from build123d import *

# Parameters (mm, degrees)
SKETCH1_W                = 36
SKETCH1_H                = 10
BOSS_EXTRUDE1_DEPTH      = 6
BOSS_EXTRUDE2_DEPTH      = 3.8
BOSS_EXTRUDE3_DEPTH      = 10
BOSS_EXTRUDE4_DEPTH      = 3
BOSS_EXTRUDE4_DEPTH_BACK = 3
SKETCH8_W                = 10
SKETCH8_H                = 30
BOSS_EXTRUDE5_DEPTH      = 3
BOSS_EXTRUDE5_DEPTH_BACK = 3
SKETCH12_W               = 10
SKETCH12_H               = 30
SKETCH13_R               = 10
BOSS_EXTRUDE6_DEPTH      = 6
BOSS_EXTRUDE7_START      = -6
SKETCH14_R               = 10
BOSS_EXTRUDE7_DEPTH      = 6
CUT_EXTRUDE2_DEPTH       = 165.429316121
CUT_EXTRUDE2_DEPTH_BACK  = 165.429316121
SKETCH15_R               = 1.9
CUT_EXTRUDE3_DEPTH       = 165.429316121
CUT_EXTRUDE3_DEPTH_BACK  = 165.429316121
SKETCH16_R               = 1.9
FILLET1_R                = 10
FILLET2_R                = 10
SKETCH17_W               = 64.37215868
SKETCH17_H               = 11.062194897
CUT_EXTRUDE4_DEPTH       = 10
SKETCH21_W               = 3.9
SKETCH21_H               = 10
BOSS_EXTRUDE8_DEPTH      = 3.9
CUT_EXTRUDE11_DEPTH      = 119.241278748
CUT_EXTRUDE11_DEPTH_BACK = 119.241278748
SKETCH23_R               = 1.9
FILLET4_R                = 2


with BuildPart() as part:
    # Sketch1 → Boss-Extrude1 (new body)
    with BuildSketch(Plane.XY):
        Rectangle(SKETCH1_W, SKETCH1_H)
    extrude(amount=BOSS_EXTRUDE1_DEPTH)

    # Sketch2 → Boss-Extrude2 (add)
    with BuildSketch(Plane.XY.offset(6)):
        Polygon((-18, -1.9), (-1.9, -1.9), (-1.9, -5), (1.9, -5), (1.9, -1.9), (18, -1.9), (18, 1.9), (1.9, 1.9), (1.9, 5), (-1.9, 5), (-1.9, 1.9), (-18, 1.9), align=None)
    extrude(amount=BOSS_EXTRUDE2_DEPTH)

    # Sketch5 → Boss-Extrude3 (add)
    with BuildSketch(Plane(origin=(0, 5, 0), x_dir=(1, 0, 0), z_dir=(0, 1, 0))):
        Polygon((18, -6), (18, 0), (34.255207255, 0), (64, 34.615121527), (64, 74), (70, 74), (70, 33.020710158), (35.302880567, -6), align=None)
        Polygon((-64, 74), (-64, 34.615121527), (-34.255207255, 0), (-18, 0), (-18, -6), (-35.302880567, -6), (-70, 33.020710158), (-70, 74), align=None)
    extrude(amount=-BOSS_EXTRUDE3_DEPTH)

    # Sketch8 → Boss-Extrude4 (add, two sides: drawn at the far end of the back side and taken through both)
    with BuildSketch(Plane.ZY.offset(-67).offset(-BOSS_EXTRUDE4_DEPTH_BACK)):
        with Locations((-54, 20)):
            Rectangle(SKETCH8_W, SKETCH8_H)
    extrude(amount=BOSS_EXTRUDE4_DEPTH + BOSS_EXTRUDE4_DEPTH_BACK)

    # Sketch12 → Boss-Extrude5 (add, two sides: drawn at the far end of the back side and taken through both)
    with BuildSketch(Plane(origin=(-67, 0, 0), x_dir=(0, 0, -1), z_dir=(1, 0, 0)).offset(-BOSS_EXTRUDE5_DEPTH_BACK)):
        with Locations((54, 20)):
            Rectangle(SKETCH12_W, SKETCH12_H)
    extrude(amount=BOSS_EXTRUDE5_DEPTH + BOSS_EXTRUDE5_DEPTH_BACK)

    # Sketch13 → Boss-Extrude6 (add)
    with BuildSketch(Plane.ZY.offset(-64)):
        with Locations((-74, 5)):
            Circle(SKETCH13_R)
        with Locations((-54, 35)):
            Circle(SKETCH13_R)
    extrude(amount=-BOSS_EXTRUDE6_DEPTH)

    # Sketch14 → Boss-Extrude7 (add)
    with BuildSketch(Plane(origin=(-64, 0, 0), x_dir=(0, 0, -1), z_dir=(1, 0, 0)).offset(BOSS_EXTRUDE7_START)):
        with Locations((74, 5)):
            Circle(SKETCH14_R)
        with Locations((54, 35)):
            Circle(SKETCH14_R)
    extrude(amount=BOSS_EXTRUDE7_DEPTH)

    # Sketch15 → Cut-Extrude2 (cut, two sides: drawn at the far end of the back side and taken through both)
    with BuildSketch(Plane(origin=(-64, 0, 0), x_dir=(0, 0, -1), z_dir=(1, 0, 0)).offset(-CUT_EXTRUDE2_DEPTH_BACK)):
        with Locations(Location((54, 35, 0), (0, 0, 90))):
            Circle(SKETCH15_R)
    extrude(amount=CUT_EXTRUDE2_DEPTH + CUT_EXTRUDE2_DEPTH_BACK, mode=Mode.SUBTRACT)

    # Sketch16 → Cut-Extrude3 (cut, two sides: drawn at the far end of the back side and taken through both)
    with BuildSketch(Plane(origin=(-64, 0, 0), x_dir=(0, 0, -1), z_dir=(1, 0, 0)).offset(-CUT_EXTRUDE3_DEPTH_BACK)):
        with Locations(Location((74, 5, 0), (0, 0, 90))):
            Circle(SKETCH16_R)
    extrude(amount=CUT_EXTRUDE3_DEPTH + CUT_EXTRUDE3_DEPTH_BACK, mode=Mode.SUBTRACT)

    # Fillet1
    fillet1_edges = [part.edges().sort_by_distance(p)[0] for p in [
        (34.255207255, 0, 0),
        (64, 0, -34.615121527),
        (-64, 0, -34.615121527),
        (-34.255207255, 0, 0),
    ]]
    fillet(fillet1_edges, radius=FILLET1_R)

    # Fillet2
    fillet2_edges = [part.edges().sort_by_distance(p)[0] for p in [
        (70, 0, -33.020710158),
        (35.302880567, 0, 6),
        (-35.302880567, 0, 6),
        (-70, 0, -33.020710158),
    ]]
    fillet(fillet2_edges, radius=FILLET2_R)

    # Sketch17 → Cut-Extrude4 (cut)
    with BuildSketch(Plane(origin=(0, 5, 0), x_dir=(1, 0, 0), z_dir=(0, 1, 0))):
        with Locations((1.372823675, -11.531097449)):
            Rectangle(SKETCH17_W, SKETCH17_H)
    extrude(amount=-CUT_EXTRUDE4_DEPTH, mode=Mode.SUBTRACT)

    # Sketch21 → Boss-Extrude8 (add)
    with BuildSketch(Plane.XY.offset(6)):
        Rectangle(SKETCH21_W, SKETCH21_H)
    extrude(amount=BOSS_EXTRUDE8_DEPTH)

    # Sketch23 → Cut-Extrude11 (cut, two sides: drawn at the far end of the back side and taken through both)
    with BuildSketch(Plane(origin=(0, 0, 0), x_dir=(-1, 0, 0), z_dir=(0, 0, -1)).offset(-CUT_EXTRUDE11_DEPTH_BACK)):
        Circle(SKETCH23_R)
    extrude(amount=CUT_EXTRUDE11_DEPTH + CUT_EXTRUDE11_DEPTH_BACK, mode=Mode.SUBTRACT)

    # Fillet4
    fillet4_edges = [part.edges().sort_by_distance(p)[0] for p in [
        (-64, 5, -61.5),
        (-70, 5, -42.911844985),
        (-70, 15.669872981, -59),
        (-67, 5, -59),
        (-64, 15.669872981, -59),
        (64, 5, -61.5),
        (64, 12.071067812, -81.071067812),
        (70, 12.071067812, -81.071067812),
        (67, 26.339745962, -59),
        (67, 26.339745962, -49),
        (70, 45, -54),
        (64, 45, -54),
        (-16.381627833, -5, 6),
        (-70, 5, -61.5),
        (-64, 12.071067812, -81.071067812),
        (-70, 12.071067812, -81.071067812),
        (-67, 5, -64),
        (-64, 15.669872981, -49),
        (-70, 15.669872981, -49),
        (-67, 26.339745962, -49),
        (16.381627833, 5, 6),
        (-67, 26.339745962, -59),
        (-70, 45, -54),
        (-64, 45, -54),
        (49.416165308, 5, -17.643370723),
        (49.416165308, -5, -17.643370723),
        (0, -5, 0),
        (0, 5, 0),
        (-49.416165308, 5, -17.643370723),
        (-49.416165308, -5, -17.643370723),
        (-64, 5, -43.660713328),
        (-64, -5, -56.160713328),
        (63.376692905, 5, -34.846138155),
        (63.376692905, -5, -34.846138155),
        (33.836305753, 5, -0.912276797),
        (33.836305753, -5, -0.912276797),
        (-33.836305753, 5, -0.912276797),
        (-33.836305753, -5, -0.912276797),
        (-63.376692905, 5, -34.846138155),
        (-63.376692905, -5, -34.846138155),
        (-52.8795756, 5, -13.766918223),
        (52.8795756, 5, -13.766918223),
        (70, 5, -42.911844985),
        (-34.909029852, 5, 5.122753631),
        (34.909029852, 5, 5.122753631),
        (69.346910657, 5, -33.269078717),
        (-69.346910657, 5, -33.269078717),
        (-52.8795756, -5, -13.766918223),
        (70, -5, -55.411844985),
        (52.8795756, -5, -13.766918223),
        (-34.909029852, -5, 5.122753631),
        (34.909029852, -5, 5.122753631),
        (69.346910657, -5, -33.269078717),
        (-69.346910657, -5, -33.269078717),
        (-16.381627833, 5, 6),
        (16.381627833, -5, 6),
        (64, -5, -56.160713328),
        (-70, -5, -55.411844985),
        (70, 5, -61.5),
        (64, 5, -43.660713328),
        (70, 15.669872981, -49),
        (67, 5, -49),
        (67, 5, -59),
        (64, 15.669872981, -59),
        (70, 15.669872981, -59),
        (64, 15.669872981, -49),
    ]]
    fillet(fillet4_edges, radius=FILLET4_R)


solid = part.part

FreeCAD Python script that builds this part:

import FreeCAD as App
import Part
import Sketcher

V = App.Vector


def edges_at(feature, points):
    """Names of the edges that pass closest to the given points."""
    edges = feature.Shape.Edges
    near = lambda p: min(range(len(edges)), key=lambda i: edges[i].distToShape(Part.Vertex(*p))[0])
    return sorted({f"Edge{near(p) + 1}" for p in points})


def add_polygon(sketch, points):
    """Adds a closed chain of lines whose ends are joined by coincident constraints."""
    first, n = sketch.GeometryCount, len(points)
    for a, b in zip(points, points[1:] + points[:1]):
        sketch.addGeometry(Part.LineSegment(App.Vector(*a, 0), App.Vector(*b, 0)), False)
    for i in range(n):
        sketch.addConstraint(Sketcher.Constraint("Coincident", first + i, 2, first + (i + 1) % n, 1))

doc = App.newDocument("Part")
body = doc.addObject("PartDesign::Body", "Body")

# Sketch on XY plane
sketch1 = doc.addObject("Sketcher::SketchObject", "Sketch")
body.addObject(sketch1)
sketch1.AttachmentSupport = (doc.XY_Plane, [""])
sketch1.MapMode = "FlatFace"
add_polygon(sketch1, [(-18, 5), (-18, -5), (18, -5), (18, 5)])  # lines 0-3
sketch1.addConstraint([
    Sketcher.Constraint("Vertical", 0),
    Sketcher.Constraint("Horizontal", 1),
    Sketcher.Constraint("Vertical", 2),
    Sketcher.Constraint("Horizontal", 3),
    Sketcher.Constraint("Symmetric", 0, 2, 2, 2, -1, 1),
    Sketcher.Constraint("DistanceX", 1, 1, 1, 2, 36.0),
    Sketcher.Constraint("DistanceY", 0, 2, 0, 1, 10.0),
])
pad1 = doc.addObject("PartDesign::Pad", "Pad")
body.addObject(pad1)
pad1.Profile = sketch1
pad1.Length = 6

# Sketch on XY plane
sketch2 = doc.addObject("Sketcher::SketchObject", "Sketch001")
body.addObject(sketch2)
sketch2.AttachmentSupport = (doc.XY_Plane, [""])
sketch2.MapMode = "FlatFace"
sketch2.AttachmentOffset = App.Placement(V(0, 0, 6), App.Rotation())
add_polygon(sketch2, [(-18, -1.9), (-1.9, -1.9), (-1.9, -5), (1.9, -5), (1.9, -1.9), (18, -1.9), (18, 1.9), (1.9, 1.9), (1.9, 5), (-1.9, 5), (-1.9, 1.9), (-18, 1.9)])  # lines 0-11
sketch2.addConstraint([
    Sketcher.Constraint("Horizontal", 0),
    Sketcher.Constraint("Vertical", 1),
    Sketcher.Constraint("Horizontal", 2),
    Sketcher.Constraint("Vertical", 3),
    Sketcher.Constraint("Horizontal", 4),
    Sketcher.Constraint("Vertical", 5),
    Sketcher.Constraint("Horizontal", 6),
    Sketcher.Constraint("Vertical", 7),
    Sketcher.Constraint("Horizontal", 8),
    Sketcher.Constraint("Vertical", 9),
    Sketcher.Constraint("Horizontal", 10),
    Sketcher.Constraint("Vertical", 11),
    Sketcher.Constraint("Symmetric", 0, 2, 6, 2, -1, 1),
    Sketcher.Constraint("Symmetric", 2, 2, 8, 2, -1, 1),
    Sketcher.Constraint("Symmetric", 4, 2, 10, 2, -1, 1),
    Sketcher.Constraint("Symmetric", 0, 2, 3, 2, -2),
    Sketcher.Constraint("Equal", 8, 5),
    Sketcher.Constraint("DistanceX", 0, 1, 0, 2, 16.1),
    Sketcher.Constraint("DistanceX", 2, 1, 2, 2, 3.8),
    Sketcher.Constraint("DistanceY", 1, 2, 1, 1, 3.1),
])
pad2 = doc.addObject("PartDesign::Pad", "Pad001")
body.addObject(pad2)
pad2.Profile = sketch2
pad2.Length = 3.8

# Sketch on XZ plane
sketch3 = doc.addObject("Sketcher::SketchObject", "Sketch002")
body.addObject(sketch3)
sketch3.AttachmentSupport = (doc.XZ_Plane, [""])
sketch3.MapMode = "FlatFace"
sketch3.AttachmentOffset = App.Placement(V(0, 0, -5), App.Rotation())
add_polygon(sketch3, [(18, 0), (18, 6), (35.302881, 6), (70, -33.02071), (70, -74), (64, -74), (64, -34.615122), (34.255207, 0)])  # lines 0-7
add_polygon(sketch3, [(-64, -34.615122), (-64, -74), (-70, -74), (-70, -33.02071), (-35.302881, 6), (-18, 6), (-18, 0), (-34.255207, 0)])  # lines 8-15
sketch3.addConstraint([
    Sketcher.Constraint("Vertical", 0),
    Sketcher.Constraint("Horizontal", 1),
    Sketcher.Constraint("Vertical", 3),
    Sketcher.Constraint("Horizontal", 4),
    Sketcher.Constraint("Vertical", 5),
    Sketcher.Constraint("Horizontal", 7),
    Sketcher.Constraint("Vertical", 8),
    Sketcher.Constraint("Horizontal", 9),
    Sketcher.Constraint("Vertical", 10),
    Sketcher.Constraint("Horizontal", 12),
    Sketcher.Constraint("Vertical", 13),
    Sketcher.Constraint("Horizontal", 14),
    Sketcher.Constraint("Symmetric", 7, 2, 13, 2, -1, 1),
    Sketcher.Constraint("Symmetric", 4, 2, 8, 2, -2),
    Sketcher.Constraint("Symmetric", 2, 2, 10, 2, -2),
    Sketcher.Constraint("Symmetric", 1, 2, 11, 2, -2),
    Sketcher.Constraint("Symmetric", 6, 2, 14, 2, -2),
    Sketcher.Constraint("Horizontal", 5, 2, 15, 2),
    Sketcher.Constraint("Equal", 9, 0),
    Sketcher.Constraint("DistanceX", 4, 2, 4, 1, 6.0),
    Sketcher.Constraint("DistanceX", -1, 1, 0, 2, 18.0),
    Sketcher.Constraint("DistanceX", -1, 1, 2, 2, 70.0),
    Sketcher.Constraint("DistanceY", 3, 2, -1, 1, 74.0),
    Sketcher.Constraint("DistanceX", 1, 1, 1, 2, 17.302881),
    Sketcher.Constraint("DistanceY", 3, 2, 3, 1, 40.97929),
    Sketcher.Constraint("DistanceY", 5, 1, 5, 2, 39.384878),
    Sketcher.Constraint("Distance", 6, 45.639449),
])
pad3 = doc.addObject("PartDesign::Pad", "Pad002")
body.addObject(pad3)
pad3.Profile = sketch3
pad3.Length = 10

# Sketch on YZ plane
sketch4 = doc.addObject("Sketcher::SketchObject", "Sketch003")
body.addObject(sketch4)
sketch4.AttachmentSupport = (doc.YZ_Plane, [""])
sketch4.MapMode = "FlatFace"
sketch4.AttachmentOffset = App.Placement(V(0, 0, 67), App.Rotation())
add_polygon(sketch4, [(35, -59), (5, -59), (5, -49), (35, -49)])  # lines 0-3
sketch4.addConstraint([
    Sketcher.Constraint("Horizontal", 0),
    Sketcher.Constraint("Vertical", 1),
    Sketcher.Constraint("Horizontal", 2),
    Sketcher.Constraint("Vertical", 3),
    Sketcher.Constraint("DistanceX", 0, 2, 0, 1, 30.0),
    Sketcher.Constraint("DistanceY", 1, 1, 1, 2, 10.0),
    Sketcher.Constraint("DistanceX", -1, 1, 0, 2, 5.0),
    Sketcher.Constraint("DistanceY", 0, 2, -1, 1, 59.0),
])
pad4 = doc.addObject("PartDesign::Pad", "Pad003")
body.addObject(pad4)
pad4.Profile = sketch4
pad4.Type = "TwoLengths"
pad4.Length = 3
pad4.Length2 = 3
pad4.Reversed = True

# Sketch on YZ plane
sketch5 = doc.addObject("Sketcher::SketchObject", "Sketch004")
body.addObject(sketch5)
sketch5.AttachmentSupport = (doc.YZ_Plane, [""])
sketch5.MapMode = "FlatFace"
sketch5.AttachmentOffset = App.Placement(V(0, 0, -67), App.Rotation())
add_polygon(sketch5, [(35, -49), (5, -49), (5, -59), (35, -59)])  # lines 0-3
sketch5.addConstraint([
    Sketcher.Constraint("Horizontal", 0),
    Sketcher.Constraint("Vertical", 1),
    Sketcher.Constraint("Horizontal", 2),
    Sketcher.Constraint("Vertical", 3),
    Sketcher.Constraint("DistanceX", 0, 2, 0, 1, 30.0),
    Sketcher.Constraint("DistanceY", 1, 2, 1, 1, 10.0),
    Sketcher.Constraint("DistanceX", -1, 1, 0, 2, 5.0),
    Sketcher.Constraint("DistanceY", 0, 2, -1, 1, 49.0),
])
pad5 = doc.addObject("PartDesign::Pad", "Pad004")
body.addObject(pad5)
pad5.Profile = sketch5
pad5.Type = "TwoLengths"
pad5.Length = 3
pad5.Length2 = 3

# Sketch on YZ plane
sketch6 = doc.addObject("Sketcher::SketchObject", "Sketch005")
body.addObject(sketch6)
sketch6.AttachmentSupport = (doc.YZ_Plane, [""])
sketch6.MapMode = "FlatFace"
sketch6.AttachmentOffset = App.Placement(V(0, 0, 64), App.Rotation())
sketch6.addGeometry([
    Part.Circle(V(5, -74, 0), V(0, 0, 1), 10),
    Part.Circle(V(35, -54, 0), V(0, 0, 1), 10),
], False)
sketch6.addConstraint([
    Sketcher.Constraint("Equal", 0, 1),
    Sketcher.Constraint("Diameter", 0, 20.0),
    Sketcher.Constraint("DistanceX", -1, 1, 0, 3, 5.0),
    Sketcher.Constraint("DistanceY", 0, 3, -1, 1, 74.0),
    Sketcher.Constraint("DistanceX", -1, 1, 1, 3, 35.0),
    Sketcher.Constraint("DistanceY", 1, 3, -1, 1, 54.0),
])
pad6 = doc.addObject("PartDesign::Pad", "Pad005")
body.addObject(pad6)
pad6.Profile = sketch6
pad6.Length = 6

# Sketch on YZ plane
sketch7 = doc.addObject("Sketcher::SketchObject", "Sketch006")
body.addObject(sketch7)
sketch7.AttachmentSupport = (doc.YZ_Plane, [""])
sketch7.MapMode = "FlatFace"
sketch7.AttachmentOffset = App.Placement(V(0, 0, -70), App.Rotation())
sketch7.addGeometry([
    Part.Circle(V(5, -74, 0), V(0, 0, 1), 10),
    Part.Circle(V(35, -54, 0), V(0, 0, 1), 10),
], False)
sketch7.addConstraint([
    Sketcher.Constraint("Equal", 0, 1),
    Sketcher.Constraint("Diameter", 0, 20.0),
    Sketcher.Constraint("DistanceX", -1, 1, 0, 3, 5.0),
    Sketcher.Constraint("DistanceY", 0, 3, -1, 1, 74.0),
    Sketcher.Constraint("DistanceX", -1, 1, 1, 3, 35.0),
    Sketcher.Constraint("DistanceY", 1, 3, -1, 1, 54.0),
])
pad7 = doc.addObject("PartDesign::Pad", "Pad006")
body.addObject(pad7)
pad7.Profile = sketch7
pad7.Length = 6

# Sketch on YZ plane
sketch8 = doc.addObject("Sketcher::SketchObject", "Sketch007")
body.addObject(sketch8)
sketch8.AttachmentSupport = (doc.YZ_Plane, [""])
sketch8.MapMode = "FlatFace"
sketch8.AttachmentOffset = App.Placement(V(0, 0, -64), App.Rotation())
sketch8.addGeometry(Part.Circle(V(35, -54, 0), V(0, 0, 1), 1.9), False)
sketch8.addConstraint([
    Sketcher.Constraint("Diameter", 0, 3.8),
    Sketcher.Constraint("DistanceX", -1, 1, 0, 3, 35.0),
    Sketcher.Constraint("DistanceY", 0, 3, -1, 1, 54.0),
])
pocket1 = doc.addObject("PartDesign::Pocket", "Pocket")
body.addObject(pocket1)
pocket1.Profile = sketch8
pocket1.Type = "ThroughAll"
pocket1.Midplane = True

# Sketch on YZ plane
sketch9 = doc.addObject("Sketcher::SketchObject", "Sketch008")
body.addObject(sketch9)
sketch9.AttachmentSupport = (doc.YZ_Plane, [""])
sketch9.MapMode = "FlatFace"
sketch9.AttachmentOffset = App.Placement(V(0, 0, -64), App.Rotation())
sketch9.addGeometry(Part.Circle(V(5, -74, 0), V(0, 0, 1), 1.9), False)
sketch9.addConstraint([
    Sketcher.Constraint("Diameter", 0, 3.8),
    Sketcher.Constraint("DistanceX", -1, 1, 0, 3, 5.0),
    Sketcher.Constraint("DistanceY", 0, 3, -1, 1, 74.0),
])
pocket2 = doc.addObject("PartDesign::Pocket", "Pocket001")
body.addObject(pocket2)
pocket2.Profile = sketch9
pocket2.Type = "ThroughAll"
pocket2.Midplane = True
doc.recompute()

fillet = doc.addObject("PartDesign::Fillet", "Fillet")
body.addObject(fillet)
fillet.Base = (pocket2, edges_at(pocket2, [
    (34.255, 0, 0),
    (64, 0, -34.615),
    (-64, 0, -34.615),
    (-34.255, 0, 0),
]))
fillet.Radius = 10
doc.recompute()

fillet2 = doc.addObject("PartDesign::Fillet", "Fillet001")
body.addObject(fillet2)
fillet2.Base = (fillet, edges_at(fillet, [
    (70, 0, -33.021),
    (35.303, 0, 6),
    (-35.303, 0, 6),
    (-70, 0, -33.021),
]))
fillet2.Radius = 10

# Sketch on XZ plane
sketch10 = doc.addObject("Sketcher::SketchObject", "Sketch009")
body.addObject(sketch10)
sketch10.AttachmentSupport = (doc.XZ_Plane, [""])
sketch10.MapMode = "FlatFace"
sketch10.AttachmentOffset = App.Placement(V(0, 0, -5), App.Rotation())
add_polygon(sketch10, [(-30.813256, 6), (-30.813256, 17.062195), (33.558903, 17.062195), (33.558903, 6)])  # lines 0-3
sketch10.addConstraint([
    Sketcher.Constraint("Vertical", 0),
    Sketcher.Constraint("Horizontal", 1),
    Sketcher.Constraint("Vertical", 2),
    Sketcher.Constraint("Horizontal", 3),
    Sketcher.Constraint("DistanceY", -1, 1, 2, 2, 6.0),
    Sketcher.Constraint("DistanceX", 1, 1, 1, 2, 64.372159),
    Sketcher.Constraint("DistanceY", 0, 1, 0, 2, 11.062195),
    Sketcher.Constraint("DistanceX", 0, 2, -1, 1, 30.813256),
])
pocket3 = doc.addObject("PartDesign::Pocket", "Pocket002")
body.addObject(pocket3)
pocket3.Profile = sketch10
pocket3.Length = 10
pocket3.Reversed = True

# Sketch on XY plane
sketch11 = doc.addObject("Sketcher::SketchObject", "Sketch010")
body.addObject(sketch11)
sketch11.AttachmentSupport = (doc.XY_Plane, [""])
sketch11.MapMode = "FlatFace"
sketch11.AttachmentOffset = App.Placement(V(0, 0, 6), App.Rotation())
add_polygon(sketch11, [(-1.95, 5), (-1.95, -5), (1.95, -5), (1.95, 5)])  # lines 0-3
sketch11.addConstraint([
    Sketcher.Constraint("Vertical", 0),
    Sketcher.Constraint("Horizontal", 1),
    Sketcher.Constraint("Vertical", 2),
    Sketcher.Constraint("Horizontal", 3),
    Sketcher.Constraint("Symmetric", 0, 2, 2, 2, -1, 1),
    Sketcher.Constraint("DistanceY", 0, 2, 0, 1, 10.0),
    Sketcher.Constraint("DistanceX", 1, 1, 1, 2, 3.9),
])
pad8 = doc.addObject("PartDesign::Pad", "Pad007")
body.addObject(pad8)
pad8.Profile = sketch11
pad8.Length = 3.9

# Sketch on XY plane
sketch12 = doc.addObject("Sketcher::SketchObject", "Sketch011")
body.addObject(sketch12)
sketch12.AttachmentSupport = (doc.XY_Plane, [""])
sketch12.MapMode = "FlatFace"
sketch12.addGeometry(Part.Circle(V(0, 0, 0), V(0, 0, 1), 1.9), False)
sketch12.addConstraint([
    Sketcher.Constraint("Coincident", 0, 3, -1, 1),
    Sketcher.Constraint("Diameter", 0, 3.8),
])
pocket4 = doc.addObject("PartDesign::Pocket", "Pocket003")
body.addObject(pocket4)
pocket4.Profile = sketch12
pocket4.Type = "ThroughAll"
pocket4.Midplane = True
doc.recompute()

fillet3 = doc.addObject("PartDesign::Fillet", "Fillet002")
body.addObject(fillet3)
fillet3.Base = (pocket4, edges_at(pocket4, [
    (-64, 5, -61.5),
    (-70, 5, -42.912),
    (-70, 15.67, -59),
    (-67, 5, -59),
    (-64, 15.67, -59),
    (64, 5, -61.5),
    (64, 12.071, -81.071),
    (70, 12.071, -81.071),
    (67, 26.34, -59),
    (67, 26.34, -49),
    (70, 45, -54),
    (64, 45, -54),
    (-16.382, -5, 6),
    (-70, 5, -61.5),
    (-64, 12.071, -81.071),
    (-70, 12.071, -81.071),
    (-67, 5, -64),
    (-64, 15.67, -49),
    (-70, 15.67, -49),
    (-67, 26.34, -49),
    (16.382, 5, 6),
    (-67, 26.34, -59),
    (-70, 45, -54),
    (-64, 45, -54),
    (49.416, 5, -17.643),
    (49.416, -5, -17.643),
    (0, -5, 0),
    (0, 5, 0),
    (-49.416, 5, -17.643),
    (-49.416, -5, -17.643),
    (-64, 5, -43.661),
    (-64, -5, -56.161),
    (63.377, 5, -34.846),
    (63.377, -5, -34.846),
    (33.836, 5, -0.912),
    (33.836, -5, -0.912),
    (-33.836, 5, -0.912),
    (-33.836, -5, -0.912),
    (-63.377, 5, -34.846),
    (-63.377, -5, -34.846),
    (-52.88, 5, -13.767),
    (52.88, 5, -13.767),
    (70, 5, -42.912),
    (-34.909, 5, 5.123),
    (34.909, 5, 5.123),
    (69.347, 5, -33.269),
    (-69.347, 5, -33.269),
    (-52.88, -5, -13.767),
    (70, -5, -55.412),
    (52.88, -5, -13.767),
    (-34.909, -5, 5.123),
    (34.909, -5, 5.123),
    (69.347, -5, -33.269),
    (-69.347, -5, -33.269),
    (-16.382, 5, 6),
    (16.382, -5, 6),
    (64, -5, -56.161),
    (-70, -5, -55.412),
    (70, 5, -61.5),
    (64, 5, -43.661),
    (70, 15.67, -49),
    (67, 5, -49),
    (67, 5, -59),
    (64, 15.67, -59),
    (70, 15.67, -59),
    (64, 15.67, -49),
]))
fillet3.Radius = 2

doc.recompute()
